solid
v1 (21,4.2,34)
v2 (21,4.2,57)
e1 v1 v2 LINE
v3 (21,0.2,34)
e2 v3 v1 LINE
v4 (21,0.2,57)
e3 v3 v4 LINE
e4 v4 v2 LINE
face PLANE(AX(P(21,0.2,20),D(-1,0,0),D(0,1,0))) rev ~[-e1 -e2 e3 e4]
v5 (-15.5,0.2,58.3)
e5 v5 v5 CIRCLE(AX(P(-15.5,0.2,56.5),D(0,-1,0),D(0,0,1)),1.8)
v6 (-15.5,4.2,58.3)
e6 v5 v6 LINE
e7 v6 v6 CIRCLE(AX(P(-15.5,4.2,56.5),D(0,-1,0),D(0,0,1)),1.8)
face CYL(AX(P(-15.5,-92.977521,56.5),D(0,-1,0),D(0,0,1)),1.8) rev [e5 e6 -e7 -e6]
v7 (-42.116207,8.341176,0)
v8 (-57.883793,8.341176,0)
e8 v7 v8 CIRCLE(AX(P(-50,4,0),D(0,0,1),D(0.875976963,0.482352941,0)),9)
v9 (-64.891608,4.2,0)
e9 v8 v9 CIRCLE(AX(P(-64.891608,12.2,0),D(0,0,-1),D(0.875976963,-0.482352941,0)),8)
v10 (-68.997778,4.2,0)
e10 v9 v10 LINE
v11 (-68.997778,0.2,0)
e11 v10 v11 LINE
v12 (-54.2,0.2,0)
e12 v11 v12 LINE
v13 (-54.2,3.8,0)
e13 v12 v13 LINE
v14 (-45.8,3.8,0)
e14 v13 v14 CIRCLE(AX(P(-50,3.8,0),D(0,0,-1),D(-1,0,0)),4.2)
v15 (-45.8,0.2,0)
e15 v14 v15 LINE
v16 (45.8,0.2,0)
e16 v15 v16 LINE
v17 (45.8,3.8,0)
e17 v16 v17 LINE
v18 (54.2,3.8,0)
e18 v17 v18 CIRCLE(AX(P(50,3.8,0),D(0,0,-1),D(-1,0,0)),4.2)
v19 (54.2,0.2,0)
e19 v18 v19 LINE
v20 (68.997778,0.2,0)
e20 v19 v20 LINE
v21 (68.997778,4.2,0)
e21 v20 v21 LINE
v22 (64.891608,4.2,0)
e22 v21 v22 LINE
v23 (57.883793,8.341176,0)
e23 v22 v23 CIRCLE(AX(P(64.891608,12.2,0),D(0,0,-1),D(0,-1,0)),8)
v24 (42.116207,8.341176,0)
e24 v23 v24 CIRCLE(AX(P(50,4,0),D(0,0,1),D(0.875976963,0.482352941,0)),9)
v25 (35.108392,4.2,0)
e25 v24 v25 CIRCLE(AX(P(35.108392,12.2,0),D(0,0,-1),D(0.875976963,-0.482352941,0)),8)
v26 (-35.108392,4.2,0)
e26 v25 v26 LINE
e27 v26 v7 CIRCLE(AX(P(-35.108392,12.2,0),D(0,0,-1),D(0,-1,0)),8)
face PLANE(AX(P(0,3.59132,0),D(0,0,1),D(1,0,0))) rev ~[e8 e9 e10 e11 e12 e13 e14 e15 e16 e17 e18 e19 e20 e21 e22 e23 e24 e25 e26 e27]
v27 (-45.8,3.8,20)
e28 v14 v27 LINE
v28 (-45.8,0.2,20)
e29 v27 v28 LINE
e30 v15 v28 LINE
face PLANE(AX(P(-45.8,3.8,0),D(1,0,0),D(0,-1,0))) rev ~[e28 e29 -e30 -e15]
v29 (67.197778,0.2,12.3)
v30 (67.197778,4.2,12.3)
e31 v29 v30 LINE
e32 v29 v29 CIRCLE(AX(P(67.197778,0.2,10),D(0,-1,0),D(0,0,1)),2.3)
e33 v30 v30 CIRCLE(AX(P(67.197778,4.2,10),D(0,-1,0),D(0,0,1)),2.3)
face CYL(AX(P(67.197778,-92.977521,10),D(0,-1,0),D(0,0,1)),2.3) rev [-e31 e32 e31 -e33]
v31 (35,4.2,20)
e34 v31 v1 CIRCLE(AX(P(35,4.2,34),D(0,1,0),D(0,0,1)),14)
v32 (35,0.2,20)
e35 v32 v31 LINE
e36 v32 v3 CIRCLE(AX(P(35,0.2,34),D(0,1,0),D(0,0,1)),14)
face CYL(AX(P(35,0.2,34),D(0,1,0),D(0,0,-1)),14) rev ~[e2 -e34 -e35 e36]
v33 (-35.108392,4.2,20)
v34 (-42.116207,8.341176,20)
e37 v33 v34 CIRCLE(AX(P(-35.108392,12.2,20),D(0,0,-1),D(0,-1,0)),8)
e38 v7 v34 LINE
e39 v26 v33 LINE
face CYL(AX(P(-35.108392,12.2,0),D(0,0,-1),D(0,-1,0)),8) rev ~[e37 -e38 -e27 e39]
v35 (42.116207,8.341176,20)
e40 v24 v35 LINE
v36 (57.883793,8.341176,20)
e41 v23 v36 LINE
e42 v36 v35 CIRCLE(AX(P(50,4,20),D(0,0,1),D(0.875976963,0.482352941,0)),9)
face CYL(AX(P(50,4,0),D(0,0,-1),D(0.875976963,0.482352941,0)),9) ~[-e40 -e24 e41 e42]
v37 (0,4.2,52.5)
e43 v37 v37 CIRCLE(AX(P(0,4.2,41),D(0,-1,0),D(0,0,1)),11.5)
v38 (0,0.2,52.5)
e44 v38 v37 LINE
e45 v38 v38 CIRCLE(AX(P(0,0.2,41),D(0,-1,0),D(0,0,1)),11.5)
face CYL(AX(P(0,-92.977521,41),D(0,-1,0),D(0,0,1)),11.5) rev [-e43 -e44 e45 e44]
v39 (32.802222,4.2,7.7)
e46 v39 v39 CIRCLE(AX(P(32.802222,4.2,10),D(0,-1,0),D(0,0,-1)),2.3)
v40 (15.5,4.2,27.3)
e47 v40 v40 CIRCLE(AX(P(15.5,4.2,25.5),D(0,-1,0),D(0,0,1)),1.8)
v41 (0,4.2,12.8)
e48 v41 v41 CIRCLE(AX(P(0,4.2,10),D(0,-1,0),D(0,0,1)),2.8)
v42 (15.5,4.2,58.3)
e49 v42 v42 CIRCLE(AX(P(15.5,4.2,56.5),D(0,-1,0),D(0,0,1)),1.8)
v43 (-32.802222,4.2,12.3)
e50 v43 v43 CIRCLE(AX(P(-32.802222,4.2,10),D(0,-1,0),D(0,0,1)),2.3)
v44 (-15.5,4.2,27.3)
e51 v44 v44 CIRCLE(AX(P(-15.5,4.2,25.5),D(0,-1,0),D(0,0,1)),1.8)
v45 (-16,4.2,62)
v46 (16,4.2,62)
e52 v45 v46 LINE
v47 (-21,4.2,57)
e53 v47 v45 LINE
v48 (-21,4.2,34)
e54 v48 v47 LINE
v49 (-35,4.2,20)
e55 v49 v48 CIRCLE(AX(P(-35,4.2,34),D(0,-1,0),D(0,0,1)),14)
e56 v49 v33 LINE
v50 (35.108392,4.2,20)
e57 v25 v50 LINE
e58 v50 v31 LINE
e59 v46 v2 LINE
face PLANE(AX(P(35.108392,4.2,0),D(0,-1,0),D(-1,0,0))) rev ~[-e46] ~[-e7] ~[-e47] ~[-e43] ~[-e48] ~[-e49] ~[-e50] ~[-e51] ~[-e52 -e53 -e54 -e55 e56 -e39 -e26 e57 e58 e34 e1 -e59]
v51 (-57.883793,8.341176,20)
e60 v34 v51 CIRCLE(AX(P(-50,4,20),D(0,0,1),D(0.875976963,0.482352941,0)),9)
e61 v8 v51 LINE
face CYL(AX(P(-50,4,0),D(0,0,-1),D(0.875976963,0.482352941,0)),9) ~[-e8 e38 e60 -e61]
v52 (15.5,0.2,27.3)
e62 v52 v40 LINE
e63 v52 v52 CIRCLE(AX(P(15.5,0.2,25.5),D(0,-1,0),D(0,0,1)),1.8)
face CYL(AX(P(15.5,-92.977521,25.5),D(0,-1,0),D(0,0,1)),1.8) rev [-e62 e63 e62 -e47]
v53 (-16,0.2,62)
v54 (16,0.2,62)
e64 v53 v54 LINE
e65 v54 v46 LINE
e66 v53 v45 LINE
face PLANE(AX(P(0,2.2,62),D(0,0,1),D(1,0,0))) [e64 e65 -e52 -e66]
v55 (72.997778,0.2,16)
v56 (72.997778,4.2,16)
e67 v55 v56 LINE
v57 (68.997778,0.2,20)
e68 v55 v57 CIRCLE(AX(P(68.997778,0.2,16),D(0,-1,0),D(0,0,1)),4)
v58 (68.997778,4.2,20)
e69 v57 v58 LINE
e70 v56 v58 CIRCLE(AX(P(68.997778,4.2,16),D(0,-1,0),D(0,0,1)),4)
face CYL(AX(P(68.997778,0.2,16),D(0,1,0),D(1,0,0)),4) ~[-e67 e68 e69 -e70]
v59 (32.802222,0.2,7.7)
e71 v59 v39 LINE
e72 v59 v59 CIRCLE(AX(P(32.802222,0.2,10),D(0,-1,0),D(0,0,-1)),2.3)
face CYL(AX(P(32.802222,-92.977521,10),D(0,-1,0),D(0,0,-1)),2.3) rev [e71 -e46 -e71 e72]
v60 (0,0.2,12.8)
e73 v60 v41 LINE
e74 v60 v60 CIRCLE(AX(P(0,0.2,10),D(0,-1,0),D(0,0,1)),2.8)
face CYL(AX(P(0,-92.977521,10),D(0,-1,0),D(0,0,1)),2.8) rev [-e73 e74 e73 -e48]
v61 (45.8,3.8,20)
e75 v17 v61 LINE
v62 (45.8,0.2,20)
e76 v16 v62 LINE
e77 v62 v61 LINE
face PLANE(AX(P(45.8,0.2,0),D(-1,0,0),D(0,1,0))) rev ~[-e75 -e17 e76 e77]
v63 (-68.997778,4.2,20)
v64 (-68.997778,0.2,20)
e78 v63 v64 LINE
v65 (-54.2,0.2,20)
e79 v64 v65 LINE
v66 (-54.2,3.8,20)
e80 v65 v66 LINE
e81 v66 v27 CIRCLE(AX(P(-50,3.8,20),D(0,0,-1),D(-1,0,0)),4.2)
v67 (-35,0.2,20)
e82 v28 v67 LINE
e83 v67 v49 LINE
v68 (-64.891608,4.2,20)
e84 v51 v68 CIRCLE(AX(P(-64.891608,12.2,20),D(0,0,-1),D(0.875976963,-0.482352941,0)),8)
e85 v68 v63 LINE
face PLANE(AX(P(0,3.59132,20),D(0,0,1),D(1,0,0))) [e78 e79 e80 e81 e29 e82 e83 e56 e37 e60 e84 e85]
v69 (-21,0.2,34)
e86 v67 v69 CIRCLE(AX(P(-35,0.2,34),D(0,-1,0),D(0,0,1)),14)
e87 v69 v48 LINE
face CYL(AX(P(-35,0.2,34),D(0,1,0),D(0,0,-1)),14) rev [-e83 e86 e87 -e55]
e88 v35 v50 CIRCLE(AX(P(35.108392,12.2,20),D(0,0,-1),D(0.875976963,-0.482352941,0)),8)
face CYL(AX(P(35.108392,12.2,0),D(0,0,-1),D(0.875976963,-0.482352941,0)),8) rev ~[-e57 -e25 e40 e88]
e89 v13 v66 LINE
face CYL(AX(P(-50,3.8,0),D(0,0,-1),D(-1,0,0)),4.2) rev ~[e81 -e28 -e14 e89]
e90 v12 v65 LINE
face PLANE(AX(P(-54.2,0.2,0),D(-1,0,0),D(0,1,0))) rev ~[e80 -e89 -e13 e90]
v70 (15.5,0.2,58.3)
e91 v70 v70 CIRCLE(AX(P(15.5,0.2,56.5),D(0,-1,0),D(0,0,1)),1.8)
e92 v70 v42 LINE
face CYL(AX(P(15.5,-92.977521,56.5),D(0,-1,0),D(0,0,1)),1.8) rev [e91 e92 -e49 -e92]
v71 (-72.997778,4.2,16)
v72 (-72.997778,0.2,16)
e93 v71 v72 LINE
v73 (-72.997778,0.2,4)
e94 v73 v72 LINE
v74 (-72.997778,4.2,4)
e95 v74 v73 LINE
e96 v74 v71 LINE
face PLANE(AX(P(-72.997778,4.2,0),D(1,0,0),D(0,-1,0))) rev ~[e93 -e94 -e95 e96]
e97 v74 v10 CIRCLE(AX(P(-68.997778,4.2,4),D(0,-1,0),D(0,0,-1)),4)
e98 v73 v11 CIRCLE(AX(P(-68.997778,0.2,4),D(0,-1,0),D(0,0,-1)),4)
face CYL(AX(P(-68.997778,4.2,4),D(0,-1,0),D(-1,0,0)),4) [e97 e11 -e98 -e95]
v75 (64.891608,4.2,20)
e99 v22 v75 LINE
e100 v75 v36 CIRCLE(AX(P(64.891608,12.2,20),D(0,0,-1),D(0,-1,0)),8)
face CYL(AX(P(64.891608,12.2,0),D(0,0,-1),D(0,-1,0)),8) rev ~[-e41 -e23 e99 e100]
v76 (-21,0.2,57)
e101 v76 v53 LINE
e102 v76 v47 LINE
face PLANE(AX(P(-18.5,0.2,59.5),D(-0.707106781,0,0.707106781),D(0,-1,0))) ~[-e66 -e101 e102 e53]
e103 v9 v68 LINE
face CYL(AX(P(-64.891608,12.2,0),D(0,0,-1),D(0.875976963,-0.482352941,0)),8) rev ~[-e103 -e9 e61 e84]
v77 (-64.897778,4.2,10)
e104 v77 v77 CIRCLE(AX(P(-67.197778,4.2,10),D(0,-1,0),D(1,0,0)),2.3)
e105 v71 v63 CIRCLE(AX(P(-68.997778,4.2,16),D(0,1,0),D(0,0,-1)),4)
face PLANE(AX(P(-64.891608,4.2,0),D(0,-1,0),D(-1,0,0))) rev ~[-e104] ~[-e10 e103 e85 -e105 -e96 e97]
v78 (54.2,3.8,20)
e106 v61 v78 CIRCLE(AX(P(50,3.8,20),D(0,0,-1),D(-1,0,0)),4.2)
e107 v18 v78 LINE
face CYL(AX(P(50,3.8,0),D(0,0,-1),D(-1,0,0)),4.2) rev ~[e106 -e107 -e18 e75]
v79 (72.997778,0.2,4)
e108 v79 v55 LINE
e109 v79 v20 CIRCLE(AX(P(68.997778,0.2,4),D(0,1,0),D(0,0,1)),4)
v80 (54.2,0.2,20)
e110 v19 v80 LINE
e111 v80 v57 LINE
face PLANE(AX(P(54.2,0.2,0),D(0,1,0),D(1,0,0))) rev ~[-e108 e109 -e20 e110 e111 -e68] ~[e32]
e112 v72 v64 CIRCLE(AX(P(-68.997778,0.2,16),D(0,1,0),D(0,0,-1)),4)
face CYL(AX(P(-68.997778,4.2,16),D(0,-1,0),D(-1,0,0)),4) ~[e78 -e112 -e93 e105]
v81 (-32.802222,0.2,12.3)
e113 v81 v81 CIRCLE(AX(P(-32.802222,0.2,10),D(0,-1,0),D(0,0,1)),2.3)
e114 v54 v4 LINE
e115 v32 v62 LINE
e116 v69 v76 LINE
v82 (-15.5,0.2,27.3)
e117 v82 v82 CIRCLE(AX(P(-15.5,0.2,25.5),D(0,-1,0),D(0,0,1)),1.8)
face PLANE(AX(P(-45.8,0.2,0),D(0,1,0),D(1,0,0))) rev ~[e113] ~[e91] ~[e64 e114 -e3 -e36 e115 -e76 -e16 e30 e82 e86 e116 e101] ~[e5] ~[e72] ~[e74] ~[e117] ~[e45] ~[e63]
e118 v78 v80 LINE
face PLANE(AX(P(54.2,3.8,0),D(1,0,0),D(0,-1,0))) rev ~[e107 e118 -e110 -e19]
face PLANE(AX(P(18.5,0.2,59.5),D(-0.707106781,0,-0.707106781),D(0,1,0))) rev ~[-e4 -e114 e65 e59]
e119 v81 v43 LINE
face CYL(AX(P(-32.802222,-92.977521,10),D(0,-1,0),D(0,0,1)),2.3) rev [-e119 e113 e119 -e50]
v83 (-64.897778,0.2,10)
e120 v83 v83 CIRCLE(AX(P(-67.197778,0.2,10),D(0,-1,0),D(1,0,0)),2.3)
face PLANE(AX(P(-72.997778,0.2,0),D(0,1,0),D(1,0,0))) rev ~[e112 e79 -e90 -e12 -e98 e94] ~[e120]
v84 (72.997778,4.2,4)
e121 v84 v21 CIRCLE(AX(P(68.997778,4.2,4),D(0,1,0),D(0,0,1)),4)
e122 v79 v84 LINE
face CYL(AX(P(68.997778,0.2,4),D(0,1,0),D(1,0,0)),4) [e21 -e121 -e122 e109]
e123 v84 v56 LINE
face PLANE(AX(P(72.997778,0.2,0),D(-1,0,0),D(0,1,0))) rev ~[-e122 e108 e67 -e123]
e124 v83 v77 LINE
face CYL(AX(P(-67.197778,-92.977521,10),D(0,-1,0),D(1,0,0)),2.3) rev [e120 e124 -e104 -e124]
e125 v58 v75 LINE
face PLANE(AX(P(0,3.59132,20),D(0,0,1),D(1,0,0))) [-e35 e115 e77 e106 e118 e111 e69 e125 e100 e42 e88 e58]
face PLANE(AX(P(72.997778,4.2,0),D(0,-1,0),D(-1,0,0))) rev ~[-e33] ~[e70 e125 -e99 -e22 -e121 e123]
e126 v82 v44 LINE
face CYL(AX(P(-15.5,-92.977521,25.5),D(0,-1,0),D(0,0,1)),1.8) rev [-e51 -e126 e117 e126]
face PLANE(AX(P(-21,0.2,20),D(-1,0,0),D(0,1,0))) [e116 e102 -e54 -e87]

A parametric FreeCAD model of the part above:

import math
import FreeCAD as App
import Part
import Sketcher
from FreeCAD import Vector
Q = App.Units.Quantity


def edges_at(feature, points):
    """Names of the edges that pass closest to the given points."""
    edges = feature.Shape.Edges
    near = lambda p: min(range(len(edges)), key=lambda i: edges[i].distToShape(Part.Vertex(*p))[0])
    return sorted({f"Edge{near(p) + 1}" for p in points})

doc = App.newDocument("Part")
body = doc.addObject("PartDesign::Body", "Body")

sketch1 = body.newObject("Sketcher::SketchObject", "Sketch")
sketch1.AttachmentSupport = (doc.getObject("XY_Plane"), [""])
sketch1.MapMode = "FlatFace"
sketch1.addGeometry(Part.LineSegment(Vector(54.2, 3.8, 0), Vector(54.2, 0.2, 0)), False)
sketch1.addGeometry(Part.LineSegment(Vector(54.2, 0.2, 0), Vector(72.997778, 0.2, 0)), False)
sketch1.addGeometry(Part.LineSegment(Vector(72.997778, 0.2, 0), Vector(72.997778, 4.2, 0)), False)
sketch1.addGeometry(Part.LineSegment(Vector(72.997778, 4.2, 0), Vector(64.891608, 4.2, 0)), False)
sketch1.addGeometry(Part.ArcOfCircle(Part.Circle(Vector(64.891608, 12.2, 0), Vector(0, 0, 1), 8), math.radians(-151.160811), math.radians(-90)), False)
sketch1.addGeometry(Part.ArcOfCircle(Part.Circle(Vector(50, 4, 0), Vector(0, 0, 1), 9), math.radians(28.839189), math.radians(151.160811)), False)
sketch1.addGeometry(Part.ArcOfCircle(Part.Circle(Vector(35.108392, 12.2, 0), Vector(0, 0, 1), 8), math.radians(-90), math.radians(-28.839189)), False)
sketch1.addGeometry(Part.LineSegment(Vector(35.108392, 4.2, 0), Vector(-35.108392, 4.2, 0)), False)
sketch1.addGeometry(Part.ArcOfCircle(Part.Circle(Vector(-35.108392, 12.2, 0), Vector(0, 0, 1), 8), math.radians(-151.160811), math.radians(-90)), False)
sketch1.addGeometry(Part.ArcOfCircle(Part.Circle(Vector(-50, 4, 0), Vector(0, 0, 1), 9), math.radians(28.839189), math.radians(151.160811)), False)
sketch1.addGeometry(Part.ArcOfCircle(Part.Circle(Vector(-64.891608, 12.2, 0), Vector(0, 0, 1), 8), math.radians(-90), math.radians(-28.839189)), False)
sketch1.addGeometry(Part.LineSegment(Vector(-64.891608, 4.2, 0), Vector(-72.997778, 4.2, 0)), False)
sketch1.addGeometry(Part.LineSegment(Vector(-72.997778, 4.2, 0), Vector(-72.997778, 0.2, 0)), False)
sketch1.addGeometry(Part.LineSegment(Vector(-72.997778, 0.2, 0), Vector(-54.2, 0.2, 0)), False)
sketch1.addGeometry(Part.LineSegment(Vector(-54.2, 0.2, 0), Vector(-54.2, 3.8, 0)), False)
sketch1.addGeometry(Part.ArcOfCircle(Part.Circle(Vector(-50, 3.8, 0), Vector(0, 0, 1), 4.2), math.radians(0), math.radians(180)), False)
sketch1.addGeometry(Part.LineSegment(Vector(-45.8, 3.8, 0), Vector(-45.8, 0.2, 0)), False)
sketch1.addGeometry(Part.LineSegment(Vector(-45.8, 0.2, 0), Vector(45.8, 0.2, 0)), False)
sketch1.addGeometry(Part.LineSegment(Vector(45.8, 0.2, 0), Vector(45.8, 3.8, 0)), False)
sketch1.addGeometry(Part.ArcOfCircle(Part.Circle(Vector(50, 3.8, 0), Vector(0, 0, 1), 4.2), math.radians(0), math.radians(180)), False)
sketch1.addConstraint(Sketcher.Constraint("Coincident", 0, 2, 1, 1))
sketch1.addConstraint(Sketcher.Constraint("Coincident", 1, 2, 2, 1))
sketch1.addConstraint(Sketcher.Constraint("Coincident", 2, 2, 3, 1))
sketch1.addConstraint(Sketcher.Constraint("Tangent", 3, 2, 4, 2))
sketch1.addConstraint(Sketcher.Constraint("Tangent", 4, 1, 5, 1))
sketch1.addConstraint(Sketcher.Constraint("Tangent", 5, 2, 6, 2))
sketch1.addConstraint(Sketcher.Constraint("Tangent", 6, 1, 7, 1))
sketch1.addConstraint(Sketcher.Constraint("Tangent", 7, 2, 8, 2))
sketch1.addConstraint(Sketcher.Constraint("Tangent", 8, 1, 9, 1))
sketch1.addConstraint(Sketcher.Constraint("Tangent", 9, 2, 10, 2))
sketch1.addConstraint(Sketcher.Constraint("Tangent", 10, 1, 11, 1))
sketch1.addConstraint(Sketcher.Constraint("Coincident", 11, 2, 12, 1))
sketch1.addConstraint(Sketcher.Constraint("Coincident", 12, 2, 13, 1))
sketch1.addConstraint(Sketcher.Constraint("Coincident", 13, 2, 14, 1))
sketch1.addConstraint(Sketcher.Constraint("Tangent", 14, 2, 15, 2))
sketch1.addConstraint(Sketcher.Constraint("Tangent", 15, 1, 16, 1))
sketch1.addConstraint(Sketcher.Constraint("Coincident", 16, 2, 17, 1))
sketch1.addConstraint(Sketcher.Constraint("Coincident", 17, 2, 18, 1))
sketch1.addConstraint(Sketcher.Constraint("Tangent", 18, 2, 19, 2))
sketch1.addConstraint(Sketcher.Constraint("Tangent", 19, 1, 0, 1))
sketch1.addConstraint(Sketcher.Constraint("Vertical", 0))
sketch1.addConstraint(Sketcher.Constraint("Horizontal", 1))
sketch1.addConstraint(Sketcher.Constraint("Vertical", 2))
sketch1.addConstraint(Sketcher.Constraint("Horizontal", 3))
sketch1.addConstraint(Sketcher.Constraint("Horizontal", 7))
sketch1.addConstraint(Sketcher.Constraint("Horizontal", 11))
sketch1.addConstraint(Sketcher.Constraint("Vertical", 12))
sketch1.addConstraint(Sketcher.Constraint("Horizontal", 13))
sketch1.addConstraint(Sketcher.Constraint("Vertical", 14))
sketch1.addConstraint(Sketcher.Constraint("Vertical", 16))
sketch1.addConstraint(Sketcher.Constraint("Horizontal", 17))
sketch1.addConstraint(Sketcher.Constraint("Vertical", 18))
sketch1.addConstraint(Sketcher.Constraint("Equal", 4, 6))
sketch1.addConstraint(Sketcher.Constraint("Equal", 6, 8))
sketch1.addConstraint(Sketcher.Constraint("Equal", 5, 9))
sketch1.addConstraint(Sketcher.Constraint("Equal", 8, 10))
sketch1.addConstraint(Sketcher.Constraint("Equal", 15, 19))
sketch1.addConstraint(Sketcher.Constraint("Symmetric", 5, 3, 9, 3, -2))
sketch1.addConstraint(Sketcher.Constraint("Symmetric", 15, 3, 19, 3, -2))
sketch1.addConstraint(Sketcher.Constraint("Symmetric", 2, 2, 11, 2, -2))
sketch1.addConstraint(Sketcher.Constraint("Horizontal", 4, 3, 6, 3))
sketch1.addConstraint(Sketcher.Constraint("Horizontal", 1, 2, 12, 2))
sketch1.addConstraint(Sketcher.Constraint("Horizontal", 13, 2, 16, 2))
sketch1.addConstraint(Sketcher.Constraint("Vertical", 9, 3, 15, 3))
sketch1.addConstraint(Sketcher.Constraint("Radius", 4, Q("8 mm")))
sketch1.addConstraint(Sketcher.Constraint("Radius", 5, Q("9 mm")))
sketch1.addConstraint(Sketcher.Constraint("Radius", 15, Q("4.2 mm")))
sketch1.addConstraint(Sketcher.Constraint("DistanceY", 2, 1, 2, 2, Q("4 mm")))
sketch1.addConstraint(Sketcher.Constraint("DistanceX", 17, 1, 17, 2, Q("91.6 mm")))
sketch1.addConstraint(Sketcher.Constraint("DistanceY", 0, 2, 0, 1, Q("3.6 mm")))
sketch1.addConstraint(Sketcher.Constraint("DistanceY", -1, 1, 5, 3, Q("4 mm")))
sketch1.addConstraint(Sketcher.Constraint("DistanceY", -1, 1, 4, 3, Q("12.2 mm")))
sketch1.addConstraint(Sketcher.Constraint("DistanceX", 3, 2, 3, 1, Q("8.106169 mm")))
pad1 = body.newObject("PartDesign::Pad", "Pad")
pad1.Profile = sketch1
pad1.Length = 20
doc.recompute()

fillet = body.newObject("PartDesign::Fillet", "Fillet")
fillet.Base = (pad1, edges_at(pad1, [
    (72.998, 2.2, 20),
    (-72.998, 2.2, 0),
    (72.998, 2.2, 0),
    (-72.998, 2.2, 20),
]))
fillet.Radius = 4

sketch2 = body.newObject("Sketcher::SketchObject", "Sketch001")
sketch2.AttachmentSupport = (doc.getObject("XY_Plane"), [""])
sketch2.MapMode = "FlatFace"
sketch2.AttachmentOffset = App.Placement(Vector(0, 0, 20), App.Rotation())
sketch2.addGeometry(Part.LineSegment(Vector(-21, 4.2, 0), Vector(-21, 0.2, 0)), False)
sketch2.addGeometry(Part.LineSegment(Vector(-21, 0.2, 0), Vector(21, 0.2, 0)), False)
sketch2.addGeometry(Part.LineSegment(Vector(21, 0.2, 0), Vector(21, 4.2, 0)), False)
sketch2.addGeometry(Part.LineSegment(Vector(21, 4.2, 0), Vector(-21, 4.2, 0)), False)
sketch2.addConstraint(Sketcher.Constraint("Coincident", 0, 2, 1, 1))
sketch2.addConstraint(Sketcher.Constraint("Coincident", 1, 2, 2, 1))
sketch2.addConstraint(Sketcher.Constraint("Coincident", 2, 2, 3, 1))
sketch2.addConstraint(Sketcher.Constraint("Coincident", 3, 2, 0, 1))
sketch2.addConstraint(Sketcher.Constraint("Vertical", 0))
sketch2.addConstraint(Sketcher.Constraint("Horizontal", 1))
sketch2.addConstraint(Sketcher.Constraint("Vertical", 2))
sketch2.addConstraint(Sketcher.Constraint("Horizontal", 3))
sketch2.addConstraint(Sketcher.Constraint("DistanceX", 1, 1, 1, 2, Q("42 mm")))
sketch2.addConstraint(Sketcher.Constraint("DistanceY", 0, 2, 0, 1, Q("4 mm")))
sketch2.addConstraint(Sketcher.Constraint("DistanceX", 0, 2, -1, 1, Q("21 mm")))
sketch2.addConstraint(Sketcher.Constraint("DistanceY", -1, 1, 0, 2, Q("0.2 mm")))
pad2 = body.newObject("PartDesign::Pad", "Pad001")
pad2.Profile = sketch2
pad2.Length = 42
doc.recompute()

fillet2 = body.newObject("PartDesign::Fillet", "Fillet001")
fillet2.Base = (pad2, edges_at(pad2, [(-21, 2.2, 20), (21, 2.2, 20)]))
fillet2.Radius = 14
doc.recompute()

chamfer = body.newObject("PartDesign::Chamfer", "Chamfer")
chamfer.Base = (fillet2, edges_at(fillet2, [(-21, 2.2, 62), (21, 2.2, 62)]))
chamfer.Size = 5

sketch3 = body.newObject("Sketcher::SketchObject", "Sketch002")
sketch3.AttachmentSupport = (doc.getObject("XZ_Plane"), [""])
sketch3.MapMode = "FlatFace"
sketch3.AttachmentOffset = App.Placement(Vector(0, 0, -4.2), App.Rotation())
sketch3.addGeometry(Part.Circle(Vector(0, 10, 0), Vector(0, 0, 1), 2.8), False)
sketch3.addGeometry(Part.Circle(Vector(67.197778, 10, 0), Vector(0, 0, 1), 2.3), False)
sketch3.addGeometry(Part.Circle(Vector(32.802222, 10, 0), Vector(0, 0, 1), 2.3), False)
sketch3.addGeometry(Part.Circle(Vector(-32.802222, 10, 0), Vector(0, 0, 1), 2.3), False)
sketch3.addGeometry(Part.Circle(Vector(-67.197778, 10, 0), Vector(0, 0, 1), 2.3), False)
sketch3.addGeometry(Part.Circle(Vector(0, 41, 0), Vector(0, 0, 1), 11.5), False)
sketch3.addGeometry(Part.Circle(Vector(15.5, 25.5, 0), Vector(0, 0, 1), 1.8), False)
sketch3.addGeometry(Part.Circle(Vector(15.5, 56.5, 0), Vector(0, 0, 1), 1.8), False)
sketch3.addGeometry(Part.Circle(Vector(-15.5, 56.5, 0), Vector(0, 0, 1), 1.8), False)
sketch3.addGeometry(Part.Circle(Vector(-15.5, 25.5, 0), Vector(0, 0, 1), 1.8), False)
sketch3.addConstraint(Sketcher.Constraint("Equal", 1, 2))
sketch3.addConstraint(Sketcher.Constraint("Equal", 2, 3))
sketch3.addConstraint(Sketcher.Constraint("Equal", 3, 4))
sketch3.addConstraint(Sketcher.Constraint("Equal", 6, 7))
sketch3.addConstraint(Sketcher.Constraint("Equal", 7, 8))
sketch3.addConstraint(Sketcher.Constraint("Equal", 8, 9))
sketch3.addConstraint(Sketcher.Constraint("Symmetric", 2, 3, 3, 3, -2))
sketch3.addConstraint(Sketcher.Constraint("Symmetric", 1, 3, 4, 3, -2))
sketch3.addConstraint(Sketcher.Constraint("Symmetric", 7, 3, 8, 3, -2))
sketch3.addConstraint(Sketcher.Constraint("Symmetric", 6, 3, 9, 3, -2))
sketch3.addConstraint(Sketcher.Constraint("PointOnObject", 0, 3, -2))
sketch3.addConstraint(Sketcher.Constraint("PointOnObject", 5, 3, -2))
sketch3.addConstraint(Sketcher.Constraint("Horizontal", 0, 3, 1, 3))
sketch3.addConstraint(Sketcher.Constraint("Horizontal", 1, 3, 2, 3))
sketch3.addConstraint(Sketcher.Constraint("Vertical", 6, 3, 7, 3))
sketch3.addConstraint(Sketcher.Constraint("Diameter", 5, Q("23 mm")))
sketch3.addConstraint(Sketcher.Constraint("Diameter", 0, Q("5.6 mm")))
sketch3.addConstraint(Sketcher.Constraint("Diameter", 1, Q("4.6 mm")))
sketch3.addConstraint(Sketcher.Constraint("Diameter", 6, Q("3.6 mm")))
sketch3.addConstraint(Sketcher.Constraint("DistanceY", -1, 1, 0, 3, Q("10 mm")))
sketch3.addConstraint(Sketcher.Constraint("DistanceY", -1, 1, 5, 3, Q("41 mm")))
sketch3.addConstraint(Sketcher.Constraint("DistanceX", 3, 3, 1, 3, Q("100 mm")))
sketch3.addConstraint(Sketcher.Constraint("DistanceY", 6, 3, 7, 3, Q("31 mm")))
sketch3.addConstraint(Sketcher.Constraint("DistanceX", 8, 3, 7, 3, Q("31 mm")))
sketch3.addConstraint(Sketcher.Constraint("DistanceY", -1, 1, 6, 3, Q("25.5 mm")))
sketch3.addConstraint(Sketcher.Constraint("DistanceX", -1, 1, 1, 3, Q("67.197778 mm")))
pocket1 = body.newObject("PartDesign::Pocket", "Pocket")
pocket1.Profile = sketch3
pocket1.Type = "ThroughAll"
pocket1.Midplane = True

doc.recompute()
